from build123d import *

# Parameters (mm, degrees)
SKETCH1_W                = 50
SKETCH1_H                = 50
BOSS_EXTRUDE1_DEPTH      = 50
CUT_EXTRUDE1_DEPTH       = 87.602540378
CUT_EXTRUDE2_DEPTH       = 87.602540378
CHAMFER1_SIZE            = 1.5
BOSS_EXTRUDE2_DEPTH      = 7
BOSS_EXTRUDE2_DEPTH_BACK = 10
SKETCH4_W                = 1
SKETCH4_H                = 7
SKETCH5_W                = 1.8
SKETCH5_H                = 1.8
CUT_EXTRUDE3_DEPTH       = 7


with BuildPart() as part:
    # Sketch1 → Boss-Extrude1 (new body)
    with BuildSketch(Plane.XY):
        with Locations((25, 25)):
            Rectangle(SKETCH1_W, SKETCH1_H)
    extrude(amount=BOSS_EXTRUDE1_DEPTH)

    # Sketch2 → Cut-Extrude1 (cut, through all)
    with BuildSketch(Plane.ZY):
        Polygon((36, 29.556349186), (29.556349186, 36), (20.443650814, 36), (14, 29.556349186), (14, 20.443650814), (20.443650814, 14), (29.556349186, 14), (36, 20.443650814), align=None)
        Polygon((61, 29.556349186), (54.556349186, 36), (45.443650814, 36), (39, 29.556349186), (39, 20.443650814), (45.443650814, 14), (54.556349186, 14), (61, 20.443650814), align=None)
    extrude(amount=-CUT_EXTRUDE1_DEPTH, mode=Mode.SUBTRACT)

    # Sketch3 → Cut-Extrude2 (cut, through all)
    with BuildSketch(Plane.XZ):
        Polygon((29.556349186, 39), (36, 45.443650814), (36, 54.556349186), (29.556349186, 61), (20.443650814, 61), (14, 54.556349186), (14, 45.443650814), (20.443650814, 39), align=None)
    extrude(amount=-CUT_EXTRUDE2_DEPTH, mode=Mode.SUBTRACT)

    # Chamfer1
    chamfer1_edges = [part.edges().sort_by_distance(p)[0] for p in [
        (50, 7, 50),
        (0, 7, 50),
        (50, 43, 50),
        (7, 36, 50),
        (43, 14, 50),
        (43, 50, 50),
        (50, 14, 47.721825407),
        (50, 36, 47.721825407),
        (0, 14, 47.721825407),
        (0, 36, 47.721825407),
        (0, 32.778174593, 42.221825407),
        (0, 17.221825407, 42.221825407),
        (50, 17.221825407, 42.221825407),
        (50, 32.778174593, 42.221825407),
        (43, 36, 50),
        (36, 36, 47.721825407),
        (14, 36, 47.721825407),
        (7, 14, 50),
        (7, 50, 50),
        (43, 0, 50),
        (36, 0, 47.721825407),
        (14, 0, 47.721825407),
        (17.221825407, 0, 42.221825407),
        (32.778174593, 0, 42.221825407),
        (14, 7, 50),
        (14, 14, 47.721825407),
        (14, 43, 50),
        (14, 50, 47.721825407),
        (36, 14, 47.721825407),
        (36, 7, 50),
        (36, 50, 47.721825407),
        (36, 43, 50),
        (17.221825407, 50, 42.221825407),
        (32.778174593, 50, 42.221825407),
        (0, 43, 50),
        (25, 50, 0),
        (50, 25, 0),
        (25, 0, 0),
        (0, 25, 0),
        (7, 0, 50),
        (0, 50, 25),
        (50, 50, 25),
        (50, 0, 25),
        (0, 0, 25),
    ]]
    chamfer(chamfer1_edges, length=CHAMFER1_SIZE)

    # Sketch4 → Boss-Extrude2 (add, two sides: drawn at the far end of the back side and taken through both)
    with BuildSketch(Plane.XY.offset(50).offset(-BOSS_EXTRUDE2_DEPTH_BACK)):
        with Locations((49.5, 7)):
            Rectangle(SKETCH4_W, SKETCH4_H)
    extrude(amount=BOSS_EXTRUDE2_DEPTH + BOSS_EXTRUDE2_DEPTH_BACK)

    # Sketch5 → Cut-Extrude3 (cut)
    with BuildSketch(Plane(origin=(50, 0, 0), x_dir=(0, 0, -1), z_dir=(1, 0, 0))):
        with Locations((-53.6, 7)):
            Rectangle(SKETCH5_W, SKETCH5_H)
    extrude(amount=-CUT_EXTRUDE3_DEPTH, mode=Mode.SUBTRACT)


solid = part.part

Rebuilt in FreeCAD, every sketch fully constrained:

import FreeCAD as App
import Part
import Sketcher
from FreeCAD import Vector


def edges_at(feature, points):
    """Names of the edges that pass closest to the given points."""
    edges = feature.Shape.Edges
    near = lambda p: min(range(len(edges)), key=lambda i: edges[i].distToShape(Part.Vertex(*p))[0])
    return sorted({f"Edge{near(p) + 1}" for p in points})

doc = App.newDocument("Part")
params = doc.addObject("Spreadsheet::Sheet", "Params")
for row, (alias, value) in enumerate([
    ("sketch1_width", "50 mm"),
    ("pad1_length", "50 mm"),
    ("chamfer_size", "1.5 mm"),
    ("sketch4_width", "1 mm"),
    ("sketch4_height", "7 mm"),
    ("pad2_length", "7 mm"),
    ("pad2_length2", "10 mm"),
    ("sketch5_width", "1.8 mm"),
    ("pocket3_length", "7 mm"),
], start=1):
    params.set(f"A{row}", alias)
    params.set(f"B{row}", "=" + value)
    params.setAlias(f"B{row}", alias)

body = doc.addObject("PartDesign::Body", "Body")

sketch1 = doc.addObject("Sketcher::SketchObject", "Sketch")
body.addObject(sketch1)
sketch1.AttachmentSupport = (doc.XY_Plane, [""])
sketch1.MapMode = "FlatFace"
sketch1.addGeometry([
    Part.LineSegment(Vector(0, 50, 0), Vector(0, 0, 0)),
    Part.LineSegment(Vector(0, 0, 0), Vector(50, 0, 0)),
    Part.LineSegment(Vector(50, 0, 0), Vector(50, 50, 0)),
    Part.LineSegment(Vector(50, 50, 0), Vector(0, 50, 0)),
], False)
sketch1.addConstraint([
    Sketcher.Constraint("Coincident", 0, 2, 1, 1),
    Sketcher.Constraint("Coincident", 1, 2, 2, 1),
    Sketcher.Constraint("Coincident", 2, 2, 3, 1),
    Sketcher.Constraint("Coincident", 3, 2, 0, 1),
    Sketcher.Constraint("Vertical", 0),
    Sketcher.Constraint("Horizontal", 1),
    Sketcher.Constraint("Vertical", 2),
    Sketcher.Constraint("Horizontal", 3),
    Sketcher.Constraint("Coincident", 0, 2, -1, 1),
    Sketcher.Constraint("Equal", 3, 0),
    Sketcher.Constraint("DistanceX", 1, 1, 1, 2, 50.0),
])
sketch1.setExpression("Constraints[10]", "Params.sketch1_width")
pad1 = doc.addObject("PartDesign::Pad", "Pad")
body.addObject(pad1)
pad1.Profile = sketch1
pad1.setExpression("Length", "Params.pad1_length")

sketch2 = doc.addObject("Sketcher::SketchObject", "Sketch001")
body.addObject(sketch2)
sketch2.AttachmentSupport = (doc.YZ_Plane, [""])
sketch2.MapMode = "FlatFace"
sketch2.addGeometry([
    Part.LineSegment(Vector(29.556349, 36, 0), Vector(36, 29.556349, 0)),
    Part.LineSegment(Vector(36, 29.556349, 0), Vector(36, 20.443651, 0)),
    Part.LineSegment(Vector(36, 20.443651, 0), Vector(29.556349, 14, 0)),
    Part.LineSegment(Vector(29.556349, 14, 0), Vector(20.443651, 14, 0)),
    Part.LineSegment(Vector(20.443651, 14, 0), Vector(14, 20.443651, 0)),
    Part.LineSegment(Vector(14, 20.443651, 0), Vector(14, 29.556349, 0)),
    Part.LineSegment(Vector(14, 29.556349, 0), Vector(20.443651, 36, 0)),
    Part.LineSegment(Vector(20.443651, 36, 0), Vector(29.556349, 36, 0)),
    Part.LineSegment(Vector(29.556349, 61, 0), Vector(36, 54.556349, 0)),
    Part.LineSegment(Vector(36, 54.556349, 0), Vector(36, 45.443651, 0)),
    Part.LineSegment(Vector(36, 45.443651, 0), Vector(29.556349, 39, 0)),
    Part.LineSegment(Vector(29.556349, 39, 0), Vector(20.443651, 39, 0)),
    Part.LineSegment(Vector(20.443651, 39, 0), Vector(14, 45.443651, 0)),
    Part.LineSegment(Vector(14, 45.443651, 0), Vector(14, 54.556349, 0)),
    Part.LineSegment(Vector(14, 54.556349, 0), Vector(20.443651, 61, 0)),
    Part.LineSegment(Vector(20.443651, 61, 0), Vector(29.556349, 61, 0)),
], False)
sketch2.addConstraint([
    Sketcher.Constraint("Coincident", 0, 2, 1, 1),
    Sketcher.Constraint("Coincident", 1, 2, 2, 1),
    Sketcher.Constraint("Coincident", 2, 2, 3, 1),
    Sketcher.Constraint("Coincident", 3, 2, 4, 1),
    Sketcher.Constraint("Coincident", 4, 2, 5, 1),
    Sketcher.Constraint("Coincident", 5, 2, 6, 1),
    Sketcher.Constraint("Coincident", 6, 2, 7, 1),
    Sketcher.Constraint("Coincident", 7, 2, 0, 1),
    Sketcher.Constraint("Coincident", 8, 2, 9, 1),
    Sketcher.Constraint("Coincident", 9, 2, 10, 1),
    Sketcher.Constraint("Coincident", 10, 2, 11, 1),
    Sketcher.Constraint("Coincident", 11, 2, 12, 1),
    Sketcher.Constraint("Coincident", 12, 2, 13, 1),
    Sketcher.Constraint("Coincident", 13, 2, 14, 1),
    Sketcher.Constraint("Coincident", 14, 2, 15, 1),
    Sketcher.Constraint("Coincident", 15, 2, 8, 1),
    Sketcher.Constraint("Vertical", 1),
    Sketcher.Constraint("Horizontal", 3),
    Sketcher.Constraint("Vertical", 5),
    Sketcher.Constraint("Horizontal", 7),
    Sketcher.Constraint("Vertical", 9),
    Sketcher.Constraint("Horizontal", 11),
    Sketcher.Constraint("Vertical", 13),
    Sketcher.Constraint("Horizontal", 15),
    Sketcher.Constraint("Perpendicular", 0, 2),
    Sketcher.Constraint("Perpendicular", 2, 4),
    Sketcher.Constraint("Perpendicular", 4, 6),
    Sketcher.Constraint("Perpendicular", 6, 8),
    Sketcher.Constraint("Perpendicular", 8, 10),
    Sketcher.Constraint("Perpendicular", 10, 12),
    Sketcher.Constraint("Perpendicular", 12, 14),
    Sketcher.Constraint("Horizontal", 1, 2, 4, 2),
    Sketcher.Constraint("Horizontal", 0, 2, 5, 2),
    Sketcher.Constraint("Horizontal", 9, 2, 12, 2),
    Sketcher.Constraint("Horizontal", 8, 2, 13, 2),
    Sketcher.Constraint("Vertical", 3, 2, 6, 2),
    Sketcher.Constraint("Vertical", 2, 2, 7, 2),
    Sketcher.Constraint("Vertical", 1, 2, 8, 2),
    Sketcher.Constraint("Vertical", 7, 2, 10, 2),
    Sketcher.Constraint("Vertical", 6, 2, 11, 2),
    Sketcher.Constraint("Vertical", 11, 2, 14, 2),
    Sketcher.Constraint("Equal", 15, 1),
    Sketcher.Constraint("Equal", 5, 9),
    Sketcher.Constraint("DistanceX", -1, 1, 0, 2, 36.0),
    Sketcher.Constraint("DistanceY", -1, 1, 2, 2, 14.0),
    Sketcher.Constraint("DistanceX", -1, 1, 4, 2, 14.0),
    Sketcher.Constraint("DistanceY", -1, 1, 10, 2, 39.0),
    Sketcher.Constraint("DistanceX", 3, 2, 3, 1, 9.112698),
])
pocket1 = doc.addObject("PartDesign::Pocket", "Pocket")
body.addObject(pocket1)
pocket1.Profile = sketch2
pocket1.Type = "ThroughAll"
pocket1.Reversed = True

sketch3 = doc.addObject("Sketcher::SketchObject", "Sketch002")
body.addObject(sketch3)
sketch3.AttachmentSupport = (doc.XZ_Plane, [""])
sketch3.MapMode = "FlatFace"
sketch3.addGeometry([
    Part.LineSegment(Vector(29.556349, 39, 0), Vector(36, 45.443651, 0)),
    Part.LineSegment(Vector(36, 45.443651, 0), Vector(36, 54.556349, 0)),
    Part.LineSegment(Vector(36, 54.556349, 0), Vector(29.556349, 61, 0)),
    Part.LineSegment(Vector(29.556349, 61, 0), Vector(20.443651, 61, 0)),
    Part.LineSegment(Vector(20.443651, 61, 0), Vector(14, 54.556349, 0)),
    Part.LineSegment(Vector(14, 54.556349, 0), Vector(14, 45.443651, 0)),
    Part.LineSegment(Vector(14, 45.443651, 0), Vector(20.443651, 39, 0)),
    Part.LineSegment(Vector(20.443651, 39, 0), Vector(29.556349, 39, 0)),
], False)
sketch3.addConstraint([
    Sketcher.Constraint("Coincident", 0, 2, 1, 1),
    Sketcher.Constraint("Coincident", 1, 2, 2, 1),
    Sketcher.Constraint("Coincident", 2, 2, 3, 1),
    Sketcher.Constraint("Coincident", 3, 2, 4, 1),
    Sketcher.Constraint("Coincident", 4, 2, 5, 1),
    Sketcher.Constraint("Coincident", 5, 2, 6, 1),
    Sketcher.Constraint("Coincident", 6, 2, 7, 1),
    Sketcher.Constraint("Coincident", 7, 2, 0, 1),
    Sketcher.Constraint("Vertical", 1),
    Sketcher.Constraint("Horizontal", 3),
    Sketcher.Constraint("Vertical", 5),
    Sketcher.Constraint("Horizontal", 7),
    Sketcher.Constraint("Perpendicular", 0, 2),
    Sketcher.Constraint("Perpendicular", 2, 4),
    Sketcher.Constraint("Perpendicular", 4, 6),
    Sketcher.Constraint("Horizontal", 1, 2, 4, 2),
    Sketcher.Constraint("Horizontal", 0, 2, 5, 2),
    Sketcher.Constraint("Vertical", 3, 2, 6, 2),
    Sketcher.Constraint("Vertical", 2, 2, 7, 2),
    Sketcher.Constraint("Equal", 7, 1),
    Sketcher.Constraint("DistanceX", -1, 1, 0, 2, 36.0),
    Sketcher.Constraint("DistanceY", -1, 1, 2, 2, 61.0),
    Sketcher.Constraint("DistanceX", -1, 1, 4, 2, 14.0),
    Sketcher.Constraint("DistanceX", 3, 2, 3, 1, 9.112698),
])
pocket2 = doc.addObject("PartDesign::Pocket", "Pocket001")
body.addObject(pocket2)
pocket2.Profile = sketch3
pocket2.Type = "ThroughAll"
doc.recompute()

chamfer = doc.addObject("PartDesign::Chamfer", "Chamfer")
body.addObject(chamfer)
chamfer.Base = (pocket2, edges_at(pocket2, [
    (50, 7, 50),
    (0, 7, 50),
    (50, 43, 50),
    (7, 36, 50),
    (43, 14, 50),
    (43, 50, 50),
    (50, 14, 47.722),
    (50, 36, 47.722),
    (0, 14, 47.722),
    (0, 36, 47.722),
    (0, 32.778, 42.222),
    (0, 17.222, 42.222),
    (50, 17.222, 42.222),
    (50, 32.778, 42.222),
    (43, 36, 50),
    (36, 36, 47.722),
    (14, 36, 47.722),
    (7, 14, 50),
    (7, 50, 50),
    (43, 0, 50),
    (36, 0, 47.722),
    (14, 0, 47.722),
    (17.222, 0, 42.222),
    (32.778, 0, 42.222),
    (14, 7, 50),
    (14, 14, 47.722),
    (14, 43, 50),
    (14, 50, 47.722),
    (36, 14, 47.722),
    (36, 7, 50),
    (36, 50, 47.722),
    (36, 43, 50),
    (17.222, 50, 42.222),
    (32.778, 50, 42.222),
    (0, 43, 50),
    (25, 50, 0),
    (50, 25, 0),
    (25, 0, 0),
    (0, 25, 0),
    (7, 0, 50),
    (0, 50, 25),
    (50, 50, 25),
    (50, 0, 25),
    (0, 0, 25),
]))
chamfer.setExpression("Size", "Params.chamfer_size")

sketch4 = doc.addObject("Sketcher::SketchObject", "Sketch003")
body.addObject(sketch4)
sketch4.AttachmentSupport = (doc.XY_Plane, [""])
sketch4.MapMode = "FlatFace"
sketch4.AttachmentOffset = App.Placement(Vector(0, 0, 50), App.Rotation())
sketch4.addGeometry([
    Part.LineSegment(Vector(49, 10.5, 0), Vector(49, 3.5, 0)),
    Part.LineSegment(Vector(49, 3.5, 0), Vector(50, 3.5, 0)),
    Part.LineSegment(Vector(50, 3.5, 0), Vector(50, 10.5, 0)),
    Part.LineSegment(Vector(50, 10.5, 0), Vector(49, 10.5, 0)),
], False)
sketch4.addConstraint([
    Sketcher.Constraint("Coincident", 0, 2, 1, 1),
    Sketcher.Constraint("Coincident", 1, 2, 2, 1),
    Sketcher.Constraint("Coincident", 2, 2, 3, 1),
    Sketcher.Constraint("Coincident", 3, 2, 0, 1),
    Sketcher.Constraint("Vertical", 0),
    Sketcher.Constraint("Horizontal", 1),
    Sketcher.Constraint("Vertical", 2),
    Sketcher.Constraint("Horizontal", 3),
    Sketcher.Constraint("DistanceX", 1, 1, 1, 2, 1.0),
    Sketcher.Constraint("DistanceY", 0, 2, 0, 1, 7.0),
    Sketcher.Constraint("DistanceX", -1, 1, 0, 2, 49.0),
    Sketcher.Constraint("DistanceY", -1, 1, 0, 2, 3.5),
])
sketch4.setExpression("Constraints[8]", "Params.sketch4_width")
sketch4.setExpression("Constraints[9]", "Params.sketch4_height")
pad2 = doc.addObject("PartDesign::Pad", "Pad001")
body.addObject(pad2)
pad2.Profile = sketch4
pad2.Type = "TwoLengths"
pad2.setExpression("Length", "Params.pad2_length")
pad2.setExpression("Length2", "Params.pad2_length2")

sketch5 = doc.addObject("Sketcher::SketchObject", "Sketch004")
body.addObject(sketch5)
sketch5.AttachmentSupport = (doc.YZ_Plane, [""])
sketch5.MapMode = "FlatFace"
sketch5.AttachmentOffset = App.Placement(Vector(0, 0, 50), App.Rotation())
sketch5.addGeometry([
    Part.LineSegment(Vector(7.9, 54.5, 0), Vector(6.1, 54.5, 0)),
    Part.LineSegment(Vector(6.1, 54.5, 0), Vector(6.1, 52.7, 0)),
    Part.LineSegment(Vector(6.1, 52.7, 0), Vector(7.9, 52.7, 0)),
    Part.LineSegment(Vector(7.9, 52.7, 0), Vector(7.9, 54.5, 0)),
], False)
sketch5.addConstraint([
    Sketcher.Constraint("Coincident", 0, 2, 1, 1),
    Sketcher.Constraint("Coincident", 1, 2, 2, 1),
    Sketcher.Constraint("Coincident", 2, 2, 3, 1),
    Sketcher.Constraint("Coincident", 3, 2, 0, 1),
    Sketcher.Constraint("Horizontal", 0),
    Sketcher.Constraint("Vertical", 1),
    Sketcher.Constraint("Horizontal", 2),
    Sketcher.Constraint("Vertical", 3),
    Sketcher.Constraint("Equal", 2, 1),
    Sketcher.Constraint("DistanceX", 0, 2, 0, 1, 1.8),
    Sketcher.Constraint("DistanceX", -1, 1, 0, 2, 6.1),
    Sketcher.Constraint("DistanceY", -1, 1, 0, 2, 54.5),
])
sketch5.setExpression("Constraints[9]", "Params.sketch5_width")
pocket3 = doc.addObject("PartDesign::Pocket", "Pocket002")
body.addObject(pocket3)
pocket3.Profile = sketch5
pocket3.setExpression("Length", "Params.pocket3_length")

doc.recompute()
